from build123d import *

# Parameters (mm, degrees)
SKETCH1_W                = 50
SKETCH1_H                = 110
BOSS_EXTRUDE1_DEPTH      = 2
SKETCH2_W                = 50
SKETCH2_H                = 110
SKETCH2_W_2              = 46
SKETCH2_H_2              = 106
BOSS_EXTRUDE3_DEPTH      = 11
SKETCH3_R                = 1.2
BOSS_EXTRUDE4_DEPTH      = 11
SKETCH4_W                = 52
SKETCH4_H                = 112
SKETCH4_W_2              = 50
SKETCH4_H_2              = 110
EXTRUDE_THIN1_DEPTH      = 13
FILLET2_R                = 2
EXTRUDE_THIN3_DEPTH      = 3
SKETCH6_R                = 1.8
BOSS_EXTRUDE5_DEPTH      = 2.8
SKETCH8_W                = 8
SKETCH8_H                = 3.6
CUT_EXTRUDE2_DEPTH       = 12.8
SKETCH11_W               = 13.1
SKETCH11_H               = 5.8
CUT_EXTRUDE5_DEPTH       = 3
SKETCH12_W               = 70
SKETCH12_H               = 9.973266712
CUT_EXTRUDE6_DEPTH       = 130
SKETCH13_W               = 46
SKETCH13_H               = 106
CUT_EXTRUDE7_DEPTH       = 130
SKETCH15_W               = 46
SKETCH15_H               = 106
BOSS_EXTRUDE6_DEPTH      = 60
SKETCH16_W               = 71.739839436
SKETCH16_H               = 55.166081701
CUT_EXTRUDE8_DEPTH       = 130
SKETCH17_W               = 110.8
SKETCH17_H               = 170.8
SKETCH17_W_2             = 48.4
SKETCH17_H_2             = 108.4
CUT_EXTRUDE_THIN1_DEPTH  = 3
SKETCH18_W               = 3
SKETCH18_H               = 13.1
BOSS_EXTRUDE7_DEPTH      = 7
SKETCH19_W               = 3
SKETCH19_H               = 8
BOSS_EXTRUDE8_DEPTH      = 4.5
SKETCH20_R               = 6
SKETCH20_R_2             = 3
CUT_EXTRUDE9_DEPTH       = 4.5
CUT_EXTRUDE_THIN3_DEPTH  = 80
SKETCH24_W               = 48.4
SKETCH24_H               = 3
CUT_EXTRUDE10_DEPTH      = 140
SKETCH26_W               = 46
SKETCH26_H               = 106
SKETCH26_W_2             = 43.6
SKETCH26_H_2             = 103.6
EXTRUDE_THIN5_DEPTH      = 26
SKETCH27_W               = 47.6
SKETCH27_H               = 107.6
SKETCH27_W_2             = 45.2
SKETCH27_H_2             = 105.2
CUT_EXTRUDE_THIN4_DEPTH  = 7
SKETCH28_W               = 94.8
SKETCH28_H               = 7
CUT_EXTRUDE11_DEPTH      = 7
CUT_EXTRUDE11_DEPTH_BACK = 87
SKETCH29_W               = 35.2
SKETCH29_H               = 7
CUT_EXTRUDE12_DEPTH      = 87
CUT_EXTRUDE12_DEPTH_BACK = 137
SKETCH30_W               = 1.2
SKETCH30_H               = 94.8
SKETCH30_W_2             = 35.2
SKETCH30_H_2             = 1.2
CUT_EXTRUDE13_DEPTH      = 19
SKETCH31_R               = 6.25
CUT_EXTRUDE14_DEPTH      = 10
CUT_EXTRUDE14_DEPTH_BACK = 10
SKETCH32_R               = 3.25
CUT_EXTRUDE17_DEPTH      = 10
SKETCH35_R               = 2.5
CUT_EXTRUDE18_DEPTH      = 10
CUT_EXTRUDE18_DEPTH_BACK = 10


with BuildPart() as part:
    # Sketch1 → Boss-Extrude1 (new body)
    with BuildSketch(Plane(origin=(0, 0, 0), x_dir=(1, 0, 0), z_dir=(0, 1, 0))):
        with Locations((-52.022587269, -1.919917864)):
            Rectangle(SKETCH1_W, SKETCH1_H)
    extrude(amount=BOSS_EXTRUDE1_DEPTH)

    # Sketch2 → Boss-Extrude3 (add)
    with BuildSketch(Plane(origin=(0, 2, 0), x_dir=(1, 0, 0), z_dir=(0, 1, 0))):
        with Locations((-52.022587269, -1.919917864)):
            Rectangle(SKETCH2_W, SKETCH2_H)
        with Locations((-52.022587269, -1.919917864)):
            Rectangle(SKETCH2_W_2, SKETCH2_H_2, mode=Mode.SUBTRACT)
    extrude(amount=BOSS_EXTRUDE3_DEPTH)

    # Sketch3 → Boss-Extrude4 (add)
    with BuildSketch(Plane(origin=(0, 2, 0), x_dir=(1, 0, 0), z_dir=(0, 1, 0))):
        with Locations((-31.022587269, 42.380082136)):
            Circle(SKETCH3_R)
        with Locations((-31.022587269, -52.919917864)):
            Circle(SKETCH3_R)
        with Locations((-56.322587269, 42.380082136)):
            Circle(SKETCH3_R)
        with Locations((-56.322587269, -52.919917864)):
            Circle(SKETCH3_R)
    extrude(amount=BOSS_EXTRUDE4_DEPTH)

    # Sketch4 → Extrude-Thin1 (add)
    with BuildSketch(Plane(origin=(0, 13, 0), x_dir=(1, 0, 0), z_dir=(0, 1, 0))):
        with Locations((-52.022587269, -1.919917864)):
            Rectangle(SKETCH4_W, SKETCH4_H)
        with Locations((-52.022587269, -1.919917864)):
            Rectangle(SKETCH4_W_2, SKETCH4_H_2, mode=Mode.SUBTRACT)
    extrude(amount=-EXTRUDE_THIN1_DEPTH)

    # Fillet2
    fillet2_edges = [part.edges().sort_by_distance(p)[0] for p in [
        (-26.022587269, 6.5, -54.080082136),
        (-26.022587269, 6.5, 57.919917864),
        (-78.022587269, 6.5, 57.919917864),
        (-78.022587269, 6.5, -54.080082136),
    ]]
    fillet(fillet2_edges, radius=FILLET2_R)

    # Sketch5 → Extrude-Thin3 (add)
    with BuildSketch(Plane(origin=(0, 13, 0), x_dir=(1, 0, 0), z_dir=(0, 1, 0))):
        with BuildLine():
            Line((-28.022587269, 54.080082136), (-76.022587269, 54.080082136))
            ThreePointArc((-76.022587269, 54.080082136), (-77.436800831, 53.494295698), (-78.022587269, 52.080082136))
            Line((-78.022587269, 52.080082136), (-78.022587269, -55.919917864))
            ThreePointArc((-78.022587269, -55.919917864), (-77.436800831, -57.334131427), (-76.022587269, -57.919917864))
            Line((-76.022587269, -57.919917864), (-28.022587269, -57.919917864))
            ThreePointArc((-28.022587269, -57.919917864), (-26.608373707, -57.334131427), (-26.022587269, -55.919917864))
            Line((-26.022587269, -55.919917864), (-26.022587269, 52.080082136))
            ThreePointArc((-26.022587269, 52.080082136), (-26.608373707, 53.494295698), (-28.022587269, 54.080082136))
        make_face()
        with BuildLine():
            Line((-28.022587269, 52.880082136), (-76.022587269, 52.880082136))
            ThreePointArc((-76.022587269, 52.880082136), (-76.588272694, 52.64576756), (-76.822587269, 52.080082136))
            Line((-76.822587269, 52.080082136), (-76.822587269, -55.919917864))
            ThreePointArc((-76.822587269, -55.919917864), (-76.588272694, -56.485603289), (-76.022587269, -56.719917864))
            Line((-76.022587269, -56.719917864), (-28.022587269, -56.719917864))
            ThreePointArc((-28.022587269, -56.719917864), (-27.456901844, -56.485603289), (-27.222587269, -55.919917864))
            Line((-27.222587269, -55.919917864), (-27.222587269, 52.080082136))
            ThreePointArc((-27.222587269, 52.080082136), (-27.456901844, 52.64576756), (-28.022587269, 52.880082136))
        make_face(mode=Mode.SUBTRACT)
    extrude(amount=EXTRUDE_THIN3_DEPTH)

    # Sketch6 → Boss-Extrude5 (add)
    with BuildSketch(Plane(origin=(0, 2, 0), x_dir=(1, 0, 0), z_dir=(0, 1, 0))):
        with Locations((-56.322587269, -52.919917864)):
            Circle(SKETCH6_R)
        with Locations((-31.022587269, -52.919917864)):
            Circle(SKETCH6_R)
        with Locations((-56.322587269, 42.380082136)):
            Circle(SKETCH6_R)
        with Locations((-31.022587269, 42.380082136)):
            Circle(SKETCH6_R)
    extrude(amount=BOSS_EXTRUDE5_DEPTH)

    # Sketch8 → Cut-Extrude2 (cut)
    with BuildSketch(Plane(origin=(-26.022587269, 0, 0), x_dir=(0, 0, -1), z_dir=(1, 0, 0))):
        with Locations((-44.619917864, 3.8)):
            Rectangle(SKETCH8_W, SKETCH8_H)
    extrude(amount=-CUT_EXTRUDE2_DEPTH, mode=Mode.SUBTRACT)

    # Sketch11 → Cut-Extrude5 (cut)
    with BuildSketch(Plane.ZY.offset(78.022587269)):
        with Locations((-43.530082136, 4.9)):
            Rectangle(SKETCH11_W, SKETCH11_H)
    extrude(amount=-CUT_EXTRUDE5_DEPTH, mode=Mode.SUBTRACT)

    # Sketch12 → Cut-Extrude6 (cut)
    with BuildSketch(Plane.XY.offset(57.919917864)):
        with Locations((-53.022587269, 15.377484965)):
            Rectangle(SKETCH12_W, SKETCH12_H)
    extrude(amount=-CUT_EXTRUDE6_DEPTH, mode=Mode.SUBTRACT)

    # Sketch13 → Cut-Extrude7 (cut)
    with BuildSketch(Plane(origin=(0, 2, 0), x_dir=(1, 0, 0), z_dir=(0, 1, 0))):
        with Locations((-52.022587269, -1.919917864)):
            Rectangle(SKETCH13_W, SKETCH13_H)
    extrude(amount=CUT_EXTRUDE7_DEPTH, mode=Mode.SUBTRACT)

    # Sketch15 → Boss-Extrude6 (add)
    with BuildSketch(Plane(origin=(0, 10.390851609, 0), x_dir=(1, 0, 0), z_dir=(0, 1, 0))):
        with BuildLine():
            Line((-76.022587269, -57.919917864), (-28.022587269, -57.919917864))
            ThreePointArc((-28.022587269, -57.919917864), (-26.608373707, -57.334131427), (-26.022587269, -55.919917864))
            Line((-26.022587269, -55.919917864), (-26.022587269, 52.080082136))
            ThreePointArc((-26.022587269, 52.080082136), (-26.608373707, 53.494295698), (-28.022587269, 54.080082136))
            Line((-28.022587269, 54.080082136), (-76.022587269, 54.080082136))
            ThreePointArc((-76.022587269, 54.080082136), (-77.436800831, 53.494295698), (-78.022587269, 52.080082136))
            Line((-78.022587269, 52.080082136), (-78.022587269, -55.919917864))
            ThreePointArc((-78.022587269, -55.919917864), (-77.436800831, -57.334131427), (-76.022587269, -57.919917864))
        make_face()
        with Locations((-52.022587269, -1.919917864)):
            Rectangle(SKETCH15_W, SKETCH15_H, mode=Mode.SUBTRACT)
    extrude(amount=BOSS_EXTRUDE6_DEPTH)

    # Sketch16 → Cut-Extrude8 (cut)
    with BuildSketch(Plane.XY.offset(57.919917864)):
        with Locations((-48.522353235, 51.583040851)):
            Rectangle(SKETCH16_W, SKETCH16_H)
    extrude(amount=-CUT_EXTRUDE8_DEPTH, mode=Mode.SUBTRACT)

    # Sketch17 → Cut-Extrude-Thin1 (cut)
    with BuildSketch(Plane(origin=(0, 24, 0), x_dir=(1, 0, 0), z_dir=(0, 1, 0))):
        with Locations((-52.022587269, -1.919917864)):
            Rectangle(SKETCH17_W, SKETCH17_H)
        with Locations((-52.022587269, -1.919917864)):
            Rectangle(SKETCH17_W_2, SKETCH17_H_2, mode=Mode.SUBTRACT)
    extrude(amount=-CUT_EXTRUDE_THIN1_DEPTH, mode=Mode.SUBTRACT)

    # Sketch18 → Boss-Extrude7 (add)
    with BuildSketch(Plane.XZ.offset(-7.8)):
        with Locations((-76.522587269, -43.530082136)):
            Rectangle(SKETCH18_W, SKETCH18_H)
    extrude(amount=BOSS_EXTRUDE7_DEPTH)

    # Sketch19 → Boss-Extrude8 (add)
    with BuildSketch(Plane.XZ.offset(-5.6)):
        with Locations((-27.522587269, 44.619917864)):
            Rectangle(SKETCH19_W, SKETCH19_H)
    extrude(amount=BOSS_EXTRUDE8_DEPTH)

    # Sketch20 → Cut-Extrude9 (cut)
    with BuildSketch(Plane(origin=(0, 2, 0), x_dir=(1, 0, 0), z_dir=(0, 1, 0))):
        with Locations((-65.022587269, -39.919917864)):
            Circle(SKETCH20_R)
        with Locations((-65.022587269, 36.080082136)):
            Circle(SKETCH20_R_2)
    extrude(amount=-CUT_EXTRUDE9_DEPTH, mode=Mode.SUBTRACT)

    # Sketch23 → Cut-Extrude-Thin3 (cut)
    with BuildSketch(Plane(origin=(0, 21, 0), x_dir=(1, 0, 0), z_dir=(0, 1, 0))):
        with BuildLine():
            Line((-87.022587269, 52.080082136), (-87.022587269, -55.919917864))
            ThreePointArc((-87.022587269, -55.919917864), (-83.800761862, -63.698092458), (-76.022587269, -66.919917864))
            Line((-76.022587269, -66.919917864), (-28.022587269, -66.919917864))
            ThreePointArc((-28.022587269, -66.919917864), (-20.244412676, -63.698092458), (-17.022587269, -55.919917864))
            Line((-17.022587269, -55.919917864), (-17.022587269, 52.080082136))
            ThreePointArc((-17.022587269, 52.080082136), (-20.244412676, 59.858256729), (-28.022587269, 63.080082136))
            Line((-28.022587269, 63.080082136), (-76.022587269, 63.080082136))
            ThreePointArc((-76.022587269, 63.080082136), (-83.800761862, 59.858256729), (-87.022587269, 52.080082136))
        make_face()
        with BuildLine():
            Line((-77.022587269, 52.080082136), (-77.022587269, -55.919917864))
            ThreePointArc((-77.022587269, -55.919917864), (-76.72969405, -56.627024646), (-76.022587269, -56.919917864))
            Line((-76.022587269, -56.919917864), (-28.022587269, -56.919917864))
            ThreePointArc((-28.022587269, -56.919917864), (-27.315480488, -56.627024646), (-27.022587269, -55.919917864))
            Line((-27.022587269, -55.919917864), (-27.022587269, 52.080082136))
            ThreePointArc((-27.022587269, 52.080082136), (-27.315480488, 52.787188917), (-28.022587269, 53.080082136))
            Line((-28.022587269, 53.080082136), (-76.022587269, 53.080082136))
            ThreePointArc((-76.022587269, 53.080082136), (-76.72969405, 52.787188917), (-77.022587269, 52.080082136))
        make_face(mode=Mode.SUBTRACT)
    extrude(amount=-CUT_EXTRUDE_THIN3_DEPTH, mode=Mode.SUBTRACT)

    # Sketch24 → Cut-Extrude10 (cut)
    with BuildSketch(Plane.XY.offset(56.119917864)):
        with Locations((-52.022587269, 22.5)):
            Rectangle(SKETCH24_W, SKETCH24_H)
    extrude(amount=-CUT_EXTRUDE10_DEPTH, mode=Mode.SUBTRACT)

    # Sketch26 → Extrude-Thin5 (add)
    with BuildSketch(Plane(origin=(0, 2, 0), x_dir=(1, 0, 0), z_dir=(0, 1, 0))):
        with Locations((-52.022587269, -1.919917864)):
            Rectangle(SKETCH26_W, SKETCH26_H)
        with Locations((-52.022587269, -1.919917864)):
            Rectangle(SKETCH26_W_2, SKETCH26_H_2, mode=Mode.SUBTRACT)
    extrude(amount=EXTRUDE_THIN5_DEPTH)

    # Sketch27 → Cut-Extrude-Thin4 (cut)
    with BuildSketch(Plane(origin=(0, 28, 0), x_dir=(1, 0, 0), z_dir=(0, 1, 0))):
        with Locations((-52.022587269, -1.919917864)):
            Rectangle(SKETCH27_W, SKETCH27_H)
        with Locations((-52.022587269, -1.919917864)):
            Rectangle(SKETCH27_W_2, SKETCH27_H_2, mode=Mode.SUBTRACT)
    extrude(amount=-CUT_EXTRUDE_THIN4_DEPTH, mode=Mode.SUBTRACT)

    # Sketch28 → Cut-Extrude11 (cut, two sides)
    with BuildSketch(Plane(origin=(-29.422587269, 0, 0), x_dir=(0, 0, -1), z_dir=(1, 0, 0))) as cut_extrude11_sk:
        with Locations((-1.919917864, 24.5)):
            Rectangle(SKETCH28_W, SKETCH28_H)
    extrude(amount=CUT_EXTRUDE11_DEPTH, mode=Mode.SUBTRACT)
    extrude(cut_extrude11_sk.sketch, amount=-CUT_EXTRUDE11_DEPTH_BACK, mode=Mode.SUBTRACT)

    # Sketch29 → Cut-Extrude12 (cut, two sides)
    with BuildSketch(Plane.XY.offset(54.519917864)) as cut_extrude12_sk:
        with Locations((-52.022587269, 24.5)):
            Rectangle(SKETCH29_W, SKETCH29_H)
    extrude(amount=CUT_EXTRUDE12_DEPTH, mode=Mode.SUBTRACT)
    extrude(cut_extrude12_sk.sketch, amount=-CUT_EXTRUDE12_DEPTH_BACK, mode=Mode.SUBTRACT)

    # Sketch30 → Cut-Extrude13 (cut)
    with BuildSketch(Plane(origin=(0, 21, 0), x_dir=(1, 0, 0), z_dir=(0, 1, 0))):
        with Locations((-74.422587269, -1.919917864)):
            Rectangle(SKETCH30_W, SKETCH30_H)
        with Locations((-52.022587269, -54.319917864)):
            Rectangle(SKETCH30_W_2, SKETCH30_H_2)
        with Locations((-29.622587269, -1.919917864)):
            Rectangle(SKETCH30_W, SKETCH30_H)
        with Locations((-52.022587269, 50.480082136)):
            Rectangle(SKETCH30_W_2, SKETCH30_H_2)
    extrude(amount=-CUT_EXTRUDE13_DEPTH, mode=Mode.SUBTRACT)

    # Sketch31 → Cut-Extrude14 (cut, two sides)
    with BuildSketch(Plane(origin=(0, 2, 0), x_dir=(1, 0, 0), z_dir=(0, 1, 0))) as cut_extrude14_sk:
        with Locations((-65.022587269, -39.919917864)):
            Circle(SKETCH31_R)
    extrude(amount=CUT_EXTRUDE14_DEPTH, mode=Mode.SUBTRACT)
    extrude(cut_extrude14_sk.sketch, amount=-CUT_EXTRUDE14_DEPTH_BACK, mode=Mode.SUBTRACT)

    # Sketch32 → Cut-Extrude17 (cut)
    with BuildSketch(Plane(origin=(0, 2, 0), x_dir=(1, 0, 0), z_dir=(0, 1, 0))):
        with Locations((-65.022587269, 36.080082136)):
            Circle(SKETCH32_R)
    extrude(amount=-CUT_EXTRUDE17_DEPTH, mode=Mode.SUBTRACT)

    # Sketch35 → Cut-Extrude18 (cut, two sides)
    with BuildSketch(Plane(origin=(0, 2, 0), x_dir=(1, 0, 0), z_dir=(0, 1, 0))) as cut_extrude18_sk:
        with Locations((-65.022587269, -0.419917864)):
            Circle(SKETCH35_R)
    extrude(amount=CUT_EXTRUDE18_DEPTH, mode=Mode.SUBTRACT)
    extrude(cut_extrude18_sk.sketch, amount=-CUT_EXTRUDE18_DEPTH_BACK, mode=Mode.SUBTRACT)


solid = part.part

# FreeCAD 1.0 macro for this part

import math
import FreeCAD as App
import Part
import Sketcher

V = App.Vector


def edges_at(feature, points):
    """Names of the edges that pass closest to the given points."""
    edges = feature.Shape.Edges
    near = lambda p: min(range(len(edges)), key=lambda i: edges[i].distToShape(Part.Vertex(*p))[0])
    return sorted({f"Edge{near(p) + 1}" for p in points})


def add_polygon(sketch, points):
    """Adds a closed chain of lines whose ends are joined by coincident constraints."""
    first, n = sketch.GeometryCount, len(points)
    for a, b in zip(points, points[1:] + points[:1]):
        sketch.addGeometry(Part.LineSegment(App.Vector(*a, 0), App.Vector(*b, 0)), False)
    for i in range(n):
        sketch.addConstraint(Sketcher.Constraint("Coincident", first + i, 2, first + (i + 1) % n, 1))

doc = App.newDocument("Part")
body = doc.addObject("PartDesign::Body", "Body")

# Sketch on XZ plane
sketch1 = body.newObject("Sketcher::SketchObject", "Sketch")
sketch1.AttachmentSupport = (doc.getObject("XZ_Plane"), [""])
sketch1.MapMode = "FlatFace"
add_polygon(sketch1, [(-77, -53), (-77, 57), (-27, 57), (-27, -53)])  # lines 0-3
sketch1.addConstraint([
    Sketcher.Constraint("Vertical", 0),
    Sketcher.Constraint("Horizontal", 1),
    Sketcher.Constraint("Vertical", 2),
    Sketcher.Constraint("Horizontal", 3),
    Sketcher.Constraint("DistanceX", 1, 1, 1, 2, 50.0),
    Sketcher.Constraint("DistanceY", 0, 1, 0, 2, 110.0),
    Sketcher.Constraint("DistanceX", 0, 2, -1, 1, 77.022587),
    Sketcher.Constraint("DistanceY", -1, 1, 0, 2, 56.919918),
])
pad1 = body.newObject("PartDesign::Pad", "Pad")
pad1.Profile = sketch1
pad1.Length = 2
pad1.Reversed = True

# Sketch on XZ plane
sketch2 = body.newObject("Sketcher::SketchObject", "Sketch001")
sketch2.AttachmentSupport = (doc.getObject("XZ_Plane"), [""])
sketch2.MapMode = "FlatFace"
sketch2.AttachmentOffset = App.Placement(V(0, 0, -2), App.Rotation())
add_polygon(sketch2, [(-77, -53), (-77, 57), (-27, 57), (-27, -53)])  # lines 0-3
add_polygon(sketch2, [(-29, 55), (-75, 55), (-75, -51), (-29, -51)])  # lines 4-7
sketch2.addConstraint([
    Sketcher.Constraint("Vertical", 0),
    Sketcher.Constraint("Horizontal", 1),
    Sketcher.Constraint("Vertical", 2),
    Sketcher.Constraint("Horizontal", 3),
    Sketcher.Constraint("Horizontal", 4),
    Sketcher.Constraint("Vertical", 5),
    Sketcher.Constraint("Horizontal", 6),
    Sketcher.Constraint("Vertical", 7),
    Sketcher.Constraint("DistanceX", 1, 1, 1, 2, 50.0),
    Sketcher.Constraint("DistanceX", 4, 2, 4, 1, 46.0),
    Sketcher.Constraint("DistanceY", 0, 1, 0, 2, 110.0),
    Sketcher.Constraint("DistanceY", 5, 2, 5, 1, 106.0),
    Sketcher.Constraint("DistanceX", 0, 2, 4, 2, 2.0),
    Sketcher.Constraint("DistanceY", 4, 2, 0, 2, 2.0),
    Sketcher.Constraint("DistanceX", 0, 2, -1, 1, 77.022587),
    Sketcher.Constraint("DistanceY", -1, 1, 0, 2, 56.919918),
])
pad2 = body.newObject("PartDesign::Pad", "Pad001")
pad2.Profile = sketch2
pad2.Length = 11
pad2.Reversed = True

# Sketch on XZ plane
sketch3 = body.newObject("Sketcher::SketchObject", "Sketch002")
sketch3.AttachmentSupport = (doc.getObject("XZ_Plane"), [""])
sketch3.MapMode = "FlatFace"
sketch3.AttachmentOffset = App.Placement(V(0, 0, -2), App.Rotation())
sketch3.addGeometry([
    Part.Circle(V(-31, -42.4, 0), V(0, 0, 1), 1.2),
    Part.Circle(V(-31, 52.9, 0), V(0, 0, 1), 1.2),
    Part.Circle(V(-56.3, -42.4, 0), V(0, 0, 1), 1.2),
    Part.Circle(V(-56.3, 52.9, 0), V(0, 0, 1), 1.2),
], False)
sketch3.addConstraint([
    Sketcher.Constraint("Equal", 0, 1),
    Sketcher.Constraint("Equal", 1, 2),
    Sketcher.Constraint("Equal", 2, 3),
    Sketcher.Constraint("Horizontal", 0, 3, 2, 3),
    Sketcher.Constraint("Horizontal", 1, 3, 3, 3),
    Sketcher.Constraint("Vertical", 0, 3, 1, 3),
    Sketcher.Constraint("Vertical", 2, 3, 3, 3),
    Sketcher.Constraint("Diameter", 0, 2.4),
    Sketcher.Constraint("DistanceY", 0, 3, 1, 3, 95.3),
    Sketcher.Constraint("DistanceX", 2, 3, 0, 3, 25.3),
    Sketcher.Constraint("DistanceX", 0, 3, -1, 1, 31.022587),
    Sketcher.Constraint("DistanceY", 0, 3, -1, 1, 42.380082),
])
pad3 = body.newObject("PartDesign::Pad", "Pad002")
pad3.Profile = sketch3
pad3.Length = 11
pad3.Reversed = True

# Sketch on XZ plane
sketch4 = body.newObject("Sketcher::SketchObject", "Sketch003")
sketch4.AttachmentSupport = (doc.getObject("XZ_Plane"), [""])
sketch4.MapMode = "FlatFace"
sketch4.AttachmentOffset = App.Placement(V(0, 0, -13), App.Rotation())
add_polygon(sketch4, [(-78, -54), (-78, 58), (-26, 58), (-26, -54)])  # lines 0-3
add_polygon(sketch4, [(-27, 57), (-77, 57), (-77, -53), (-27, -53)])  # lines 4-7
sketch4.addConstraint([
    Sketcher.Constraint("Vertical", 0),
    Sketcher.Constraint("Horizontal", 1),
    Sketcher.Constraint("Vertical", 2),
    Sketcher.Constraint("Horizontal", 3),
    Sketcher.Constraint("Horizontal", 4),
    Sketcher.Constraint("Vertical", 5),
    Sketcher.Constraint("Horizontal", 6),
    Sketcher.Constraint("Vertical", 7),
    Sketcher.Constraint("DistanceX", 1, 1, 1, 2, 52.0),
    Sketcher.Constraint("DistanceX", 4, 2, 4, 1, 50.0),
    Sketcher.Constraint("DistanceY", 0, 1, 0, 2, 112.0),
    Sketcher.Constraint("DistanceY", 5, 2, 5, 1, 110.0),
    Sketcher.Constraint("DistanceX", 0, 2, 4, 2, 1.0),
    Sketcher.Constraint("DistanceY", 4, 2, 0, 2, 1.0),
    Sketcher.Constraint("DistanceX", 0, 2, -1, 1, 78.022587),
    Sketcher.Constraint("DistanceY", -1, 1, 0, 2, 57.919918),
])
pad4 = body.newObject("PartDesign::Pad", "Pad003")
pad4.Profile = sketch4
pad4.Length = 13
doc.recompute()

fillet = body.newObject("PartDesign::Fillet", "Fillet")
fillet.Base = (pad4, edges_at(pad4, [
    (-26.023, 6.5, -54.08),
    (-26.023, 6.5, 57.92),
    (-78.023, 6.5, 57.92),
    (-78.023, 6.5, -54.08),
]))
fillet.Radius = 2

# Sketch on XZ plane
sketch5 = body.newObject("Sketcher::SketchObject", "Sketch004")
sketch5.AttachmentSupport = (doc.getObject("XZ_Plane"), [""])
sketch5.MapMode = "FlatFace"
sketch5.AttachmentOffset = App.Placement(V(0, 0, -13), App.Rotation())
sketch5.addGeometry([
    Part.LineSegment(V(-28, -54.1, 0), V(-76, -54.1, 0)),  # 0
    Part.ArcOfCircle(Part.Circle(V(-76, -52.1, 0), V(0, 0, 1), 2), math.radians(-180), math.radians(-90)),  # 1
    Part.LineSegment(V(-78, -52.1, 0), V(-78, 55.9, 0)),  # 2
    Part.ArcOfCircle(Part.Circle(V(-76, 55.9, 0), V(0, 0, 1), 2), math.radians(90), math.radians(180)),  # 3
    Part.LineSegment(V(-76, 57.9, 0), V(-28, 57.9, 0)),  # 4
    Part.ArcOfCircle(Part.Circle(V(-28, 55.9, 0), V(0, 0, 1), 2), math.radians(0), math.radians(90)),  # 5
    Part.LineSegment(V(-26, 55.9, 0), V(-26, -52.1, 0)),  # 6
    Part.ArcOfCircle(Part.Circle(V(-28, -52.1, 0), V(0, 0, 1), 2), math.radians(-90), math.radians(0)),  # 7
    Part.LineSegment(V(-76, -52.9, 0), V(-28, -52.9, 0)),  # 8
    Part.ArcOfCircle(Part.Circle(V(-28, -52.1, 0), V(0, 0, 1), 0.8), math.radians(-90), math.radians(0)),  # 9
    Part.LineSegment(V(-27.2, -52.1, 0), V(-27.2, 55.9, 0)),  # 10
    Part.ArcOfCircle(Part.Circle(V(-28, 55.9, 0), V(0, 0, 1), 0.8), math.radians(0), math.radians(90)),  # 11
    Part.LineSegment(V(-28, 56.7, 0), V(-76, 56.7, 0)),  # 12
    Part.ArcOfCircle(Part.Circle(V(-76, 55.9, 0), V(0, 0, 1), 0.8), math.radians(90), math.radians(180)),  # 13
    Part.LineSegment(V(-76.8, 55.9, 0), V(-76.8, -52.1, 0)),  # 14
    Part.ArcOfCircle(Part.Circle(V(-76, -52.1, 0), V(0, 0, 1), 0.8), math.radians(-180), math.radians(-90)),  # 15
], False)
sketch5.addConstraint([
    Sketcher.Constraint("Tangent", 0, 2, 1, 2),
    Sketcher.Constraint("Tangent", 1, 1, 2, 1),
    Sketcher.Constraint("Tangent", 2, 2, 3, 2),
    Sketcher.Constraint("Tangent", 3, 1, 4, 1),
    Sketcher.Constraint("Tangent", 4, 2, 5, 2),
    Sketcher.Constraint("Tangent", 5, 1, 6, 1),
    Sketcher.Constraint("Tangent", 6, 2, 7, 2),
    Sketcher.Constraint("Tangent", 7, 1, 0, 1),
    Sketcher.Constraint("Tangent", 8, 2, 9, 1),
    Sketcher.Constraint("Tangent", 9, 2, 10, 1),
    Sketcher.Constraint("Tangent", 10, 2, 11, 1),
    Sketcher.Constraint("Tangent", 11, 2, 12, 1),
    Sketcher.Constraint("Tangent", 12, 2, 13, 1),
    Sketcher.Constraint("Tangent", 13, 2, 14, 1),
    Sketcher.Constraint("Tangent", 14, 2, 15, 1),
    Sketcher.Constraint("Tangent", 15, 2, 8, 1),
    Sketcher.Constraint("Horizontal", 0),
    Sketcher.Constraint("Vertical", 2),
    Sketcher.Constraint("Horizontal", 4),
    Sketcher.Constraint("Vertical", 6),
    Sketcher.Constraint("Horizontal", 8),
    Sketcher.Constraint("Vertical", 10),
    Sketcher.Constraint("Horizontal", 12),
    Sketcher.Constraint("Vertical", 14),
    Sketcher.Constraint("Coincident", 9, 3, 7, 3),
    Sketcher.Constraint("Coincident", 11, 3, 5, 3),
    Sketcher.Constraint("Coincident", 13, 3, 3, 3),
    Sketcher.Constraint("Equal", 1, 3),
    Sketcher.Constraint("Equal", 3, 5),
    Sketcher.Constraint("Equal", 5, 7),
    Sketcher.Constraint("Equal", 13, 15),
    Sketcher.Constraint("Radius", 1, 2.0),
    Sketcher.Constraint("Radius", 9, 0.8),
    Sketcher.Constraint("DistanceX", 0, 2, 0, 1, 48.0),
    Sketcher.Constraint("DistanceY", 2, 1, 2, 2, 108.0),
    Sketcher.Constraint("DistanceX", 1, 3, -1, 1, 76.022587),
    Sketcher.Constraint("DistanceY", 1, 3, -1, 1, 52.080082),
])
pad5 = body.newObject("PartDesign::Pad", "Pad004")
pad5.Profile = sketch5
pad5.Length = 3
pad5.Reversed = True

# Sketch on XZ plane
sketch6 = body.newObject("Sketcher::SketchObject", "Sketch005")
sketch6.AttachmentSupport = (doc.getObject("XZ_Plane"), [""])
sketch6.MapMode = "FlatFace"
sketch6.AttachmentOffset = App.Placement(V(0, 0, -2), App.Rotation())
sketch6.addGeometry([
    Part.Circle(V(-56.3, 52.9, 0), V(0, 0, 1), 1.8),
    Part.Circle(V(-31, 52.9, 0), V(0, 0, 1), 1.8),
    Part.Circle(V(-56.3, -42.4, 0), V(0, 0, 1), 1.8),
    Part.Circle(V(-31, -42.4, 0), V(0, 0, 1), 1.8),
], False)
sketch6.addConstraint([
    Sketcher.Constraint("Equal", 0, 1),
    Sketcher.Constraint("Equal", 1, 2),
    Sketcher.Constraint("Equal", 2, 3),
    Sketcher.Constraint("Horizontal", 0, 3, 1, 3),
    Sketcher.Constraint("Horizontal", 2, 3, 3, 3),
    Sketcher.Constraint("Vertical", 0, 3, 2, 3),
    Sketcher.Constraint("Vertical", 1, 3, 3, 3),
    Sketcher.Constraint("Diameter", 0, 3.6),
    Sketcher.Constraint("DistanceX", 0, 3, 1, 3, 25.3),
    Sketcher.Constraint("DistanceY", 2, 3, 0, 3, 95.3),
    Sketcher.Constraint("DistanceX", 0, 3, -1, 1, 56.322587),
    Sketcher.Constraint("DistanceY", -1, 1, 0, 3, 52.919918),
])
pad6 = body.newObject("PartDesign::Pad", "Pad005")
pad6.Profile = sketch6
pad6.Length = 2.8
pad6.Reversed = True

# Sketch on YZ plane
sketch7 = body.newObject("Sketcher::SketchObject", "Sketch006")
sketch7.AttachmentSupport = (doc.getObject("YZ_Plane"), [""])
sketch7.MapMode = "FlatFace"
sketch7.AttachmentOffset = App.Placement(V(0, 0, -26.022587), App.Rotation())
add_polygon(sketch7, [(5.6, 48.6), (2, 48.6), (2, 40.6), (5.6, 40.6)])  # lines 0-3
sketch7.addConstraint([
    Sketcher.Constraint("Horizontal", 0),
    Sketcher.Constraint("Vertical", 1),
    Sketcher.Constraint("Horizontal", 2),
    Sketcher.Constraint("Vertical", 3),
    Sketcher.Constraint("DistanceY", 1, 2, 1, 1, 8.0),
    Sketcher.Constraint("DistanceX", 0, 2, 0, 1, 3.6),
    Sketcher.Constraint("DistanceX", -1, 1, 0, 2, 2.0),
    Sketcher.Constraint("DistanceY", -1, 1, 0, 2, 48.619918),
])
pocket1 = body.newObject("PartDesign::Pocket", "Pocket")
pocket1.Profile = sketch7
pocket1.Length = 12.8

# Sketch on YZ plane
sketch8 = body.newObject("Sketcher::SketchObject", "Sketch007")
sketch8.AttachmentSupport = (doc.getObject("YZ_Plane"), [""])
sketch8.MapMode = "FlatFace"
sketch8.AttachmentOffset = App.Placement(V(0, 0, -78.022587), App.Rotation())
add_polygon(sketch8, [(8, -50), (2, -50), (2, -37), (8, -37)])  # lines 0-3
sketch8.addConstraint([
    Sketcher.Constraint("Horizontal", 0),
    Sketcher.Constraint("Vertical", 1),
    Sketcher.Constraint("Horizontal", 2),
    Sketcher.Constraint("Vertical", 3),
    Sketcher.Constraint("DistanceX", 0, 2, 0, 1, 5.8),
    Sketcher.Constraint("DistanceY", 1, 1, 1, 2, 13.1),
    Sketcher.Constraint("DistanceX", -1, 1, 0, 2, 2.0),
    Sketcher.Constraint("DistanceY", 0, 2, -1, 1, 50.080082),
])
pocket2 = body.newObject("PartDesign::Pocket", "Pocket001")
pocket2.Profile = sketch8
pocket2.Length = 3
pocket2.Reversed = True

# Sketch on XY plane
sketch9 = body.newObject("Sketcher::SketchObject", "Sketch008")
sketch9.AttachmentSupport = (doc.getObject("XY_Plane"), [""])
sketch9.MapMode = "FlatFace"
sketch9.AttachmentOffset = App.Placement(V(0, 0, 57.919918), App.Rotation())
add_polygon(sketch9, [(-88, 20), (-88, 10), (-18, 10), (-18, 20)])  # lines 0-3
sketch9.addConstraint([
    Sketcher.Constraint("Vertical", 0),
    Sketcher.Constraint("Horizontal", 1),
    Sketcher.Constraint("Vertical", 2),
    Sketcher.Constraint("Horizontal", 3),
    Sketcher.Constraint("DistanceX", 1, 1, 1, 2, 70.0),
    Sketcher.Constraint("DistanceY", 0, 2, 0, 1, 9.973267),
    Sketcher.Constraint("DistanceY", -1, 1, 0, 2, 10.390852),
    Sketcher.Constraint("DistanceX", 0, 2, -1, 1, 88.022587),
])
pocket3 = body.newObject("PartDesign::Pocket", "Pocket002")
pocket3.Profile = sketch9
pocket3.Length = 130

# Sketch on XZ plane
sketch10 = body.newObject("Sketcher::SketchObject", "Sketch009")
sketch10.AttachmentSupport = (doc.getObject("XZ_Plane"), [""])
sketch10.MapMode = "FlatFace"
sketch10.AttachmentOffset = App.Placement(V(0, 0, -2), App.Rotation())
add_polygon(sketch10, [(-75, -51), (-75, 55), (-29, 55), (-29, -51)])  # lines 0-3
sketch10.addConstraint([
    Sketcher.Constraint("Vertical", 0),
    Sketcher.Constraint("Horizontal", 1),
    Sketcher.Constraint("Vertical", 2),
    Sketcher.Constraint("Horizontal", 3),
    Sketcher.Constraint("DistanceX", 1, 1, 1, 2, 46.0),
    Sketcher.Constraint("DistanceY", 0, 1, 0, 2, 106.0),
    Sketcher.Constraint("DistanceX", 0, 2, -1, 1, 75.022587),
    Sketcher.Constraint("DistanceY", -1, 1, 0, 2, 54.919918),
])
pocket4 = body.newObject("PartDesign::Pocket", "Pocket003")
pocket4.Profile = sketch10
pocket4.Length = 130

# Sketch on XZ plane
sketch11 = body.newObject("Sketcher::SketchObject", "Sketch010")
sketch11.AttachmentSupport = (doc.getObject("XZ_Plane"), [""])
sketch11.MapMode = "FlatFace"
sketch11.AttachmentOffset = App.Placement(V(0, 0, -10.390852), App.Rotation())
sketch11.addGeometry(Part.LineSegment(V(-76, 57.9, 0), V(-28, 57.9, 0)), False)  # 0
sketch11.addGeometry(Part.ArcOfCircle(Part.Circle(V(-28, 55.9, 0), V(0, 0, 1), 2), math.radians(0), math.radians(90)), False)  # 1
sketch11.addGeometry(Part.LineSegment(V(-26, 55.9, 0), V(-26, -52.1, 0)), False)  # 2
sketch11.addGeometry(Part.ArcOfCircle(Part.Circle(V(-28, -52.1, 0), V(0, 0, 1), 2), math.radians(-90), math.radians(0)), False)  # 3
sketch11.addGeometry(Part.LineSegment(V(-28, -54.1, 0), V(-76, -54.1, 0)), False)  # 4
sketch11.addGeometry(Part.ArcOfCircle(Part.Circle(V(-76, -52.1, 0), V(0, 0, 1), 2), math.radians(-180), math.radians(-90)), False)  # 5
sketch11.addGeometry(Part.LineSegment(V(-78, -52.1, 0), V(-78, 55.9, 0)), False)  # 6
sketch11.addGeometry(Part.ArcOfCircle(Part.Circle(V(-76, 55.9, 0), V(0, 0, 1), 2), math.radians(90), math.radians(180)), False)  # 7
add_polygon(sketch11, [(-29, 54.9), (-75, 54.9), (-75, -51.1), (-29, -51.1)])  # lines 8-11
sketch11.addConstraint([
    Sketcher.Constraint("Tangent", 0, 2, 1, 2),
    Sketcher.Constraint("Tangent", 1, 1, 2, 1),
    Sketcher.Constraint("Tangent", 2, 2, 3, 2),
    Sketcher.Constraint("Tangent", 3, 1, 4, 1),
    Sketcher.Constraint("Tangent", 4, 2, 5, 2),
    Sketcher.Constraint("Tangent", 5, 1, 6, 1),
    Sketcher.Constraint("Tangent", 6, 2, 7, 2),
    Sketcher.Constraint("Tangent", 7, 1, 0, 1),
    Sketcher.Constraint("Horizontal", 0),
    Sketcher.Constraint("Vertical", 2),
    Sketcher.Constraint("Horizontal", 4),
    Sketcher.Constraint("Vertical", 6),
    Sketcher.Constraint("Horizontal", 8),
    Sketcher.Constraint("Vertical", 9),
    Sketcher.Constraint("Horizontal", 10),
    Sketcher.Constraint("Vertical", 11),
    Sketcher.Constraint("Equal", 1, 3),
    Sketcher.Constraint("Equal", 3, 5),
    Sketcher.Constraint("Equal", 5, 7),
    Sketcher.Constraint("Radius", 1, 2.0),
    Sketcher.Constraint("DistanceX", 0, 1, 0, 2, 48.0),
    Sketcher.Constraint("DistanceX", 8, 2, 8, 1, 46.0),
    Sketcher.Constraint("DistanceY", 2, 2, 2, 1, 108.0),
    Sketcher.Constraint("DistanceY", 9, 2, 9, 1, 106.0),
    Sketcher.Constraint("DistanceX", 7, 3, 8, 2, 1.0),
    Sketcher.Constraint("DistanceY", 8, 2, 7, 3, 1.0),
    Sketcher.Constraint("DistanceX", 1, 3, -1, 1, 28.022587),
    Sketcher.Constraint("DistanceY", -1, 1, 1, 3, 55.919918),
])
pad7 = body.newObject("PartDesign::Pad", "Pad006")
pad7.Profile = sketch11
pad7.Length = 60
pad7.Reversed = True

# Sketch on XY plane
sketch12 = body.newObject("Sketcher::SketchObject", "Sketch011")
sketch12.AttachmentSupport = (doc.getObject("XY_Plane"), [""])
sketch12.MapMode = "FlatFace"
sketch12.AttachmentOffset = App.Placement(V(0, 0, 57.919918), App.Rotation())
add_polygon(sketch12, [(-84, 79), (-84, 24), (-13, 24), (-13, 79)])  # lines 0-3
sketch12.addConstraint([
    Sketcher.Constraint("Vertical", 0),
    Sketcher.Constraint("Horizontal", 1),
    Sketcher.Constraint("Vertical", 2),
    Sketcher.Constraint("Horizontal", 3),
    Sketcher.Constraint("DistanceY", -1, 1, 0, 2, 24.0),
    Sketcher.Constraint("DistanceX", 1, 1, 1, 2, 71.739839),
    Sketcher.Constraint("DistanceY", 0, 2, 0, 1, 55.166082),
    Sketcher.Constraint("DistanceX", 0, 2, -1, 1, 84.392273),
])
pocket5 = body.newObject("PartDesign::Pocket", "Pocket004")
pocket5.Profile = sketch12
pocket5.Length = 130

# Sketch on XZ plane
sketch13 = body.newObject("Sketcher::SketchObject", "Sketch012")
sketch13.AttachmentSupport = (doc.getObject("XZ_Plane"), [""])
sketch13.MapMode = "FlatFace"
sketch13.AttachmentOffset = App.Placement(V(0, 0, -24), App.Rotation())
add_polygon(sketch13, [(-107, -83), (-107, 87), (3, 87), (3, -83)])  # lines 0-3
add_polygon(sketch13, [(-28, 56), (-76, 56), (-76, -52), (-28, -52)])  # lines 4-7
sketch13.addConstraint([
    Sketcher.Constraint("Vertical", 0),
    Sketcher.Constraint("Horizontal", 1),
    Sketcher.Constraint("Vertical", 2),
    Sketcher.Constraint("Horizontal", 3),
    Sketcher.Constraint("Horizontal", 4),
    Sketcher.Constraint("Vertical", 5),
    Sketcher.Constraint("Horizontal", 6),
    Sketcher.Constraint("Vertical", 7),
    Sketcher.Constraint("DistanceX", 1, 1, 1, 2, 110.8),
    Sketcher.Constraint("DistanceX", 4, 2, 4, 1, 48.4),
    Sketcher.Constraint("DistanceY", 0, 1, 0, 2, 170.8),
    Sketcher.Constraint("DistanceY", 5, 2, 5, 1, 108.4),
    Sketcher.Constraint("DistanceX", 0, 2, 4, 2, 31.2),
    Sketcher.Constraint("DistanceY", 4, 2, 0, 2, 31.2),
    Sketcher.Constraint("DistanceX", 0, 2, -1, 1, 107.422587),
    Sketcher.Constraint("DistanceY", -1, 1, 0, 2, 87.319918),
])
pocket6 = body.newObject("PartDesign::Pocket", "Pocket005")
pocket6.Profile = sketch13
pocket6.Length = 3
pocket6.Reversed = True

# Sketch on XZ plane
sketch14 = body.newObject("Sketcher::SketchObject", "Sketch013")
sketch14.AttachmentSupport = (doc.getObject("XZ_Plane"), [""])
sketch14.MapMode = "FlatFace"
sketch14.AttachmentOffset = App.Placement(V(0, 0, -7.8), App.Rotation())
add_polygon(sketch14, [(-78, -37), (-78, -50.1), (-75, -50.1), (-75, -37)])  # lines 0-3
sketch14.addConstraint([
    Sketcher.Constraint("Vertical", 0),
    Sketcher.Constraint("Horizontal", 1),
    Sketcher.Constraint("Vertical", 2),
    Sketcher.Constraint("Horizontal", 3),
    Sketcher.Constraint("DistanceX", 1, 1, 1, 2, 3.0),
    Sketcher.Constraint("DistanceY", 0, 2, 0, 1, 13.1),
    Sketcher.Constraint("DistanceX", 0, 2, -1, 1, 78.022587),
    Sketcher.Constraint("DistanceY", 0, 2, -1, 1, 50.080082),
])
pad8 = body.newObject("PartDesign::Pad", "Pad007")
pad8.Profile = sketch14
pad8.Length = 7

# Sketch on XZ plane
sketch15 = body.newObject("Sketcher::SketchObject", "Sketch014")
sketch15.AttachmentSupport = (doc.getObject("XZ_Plane"), [""])
sketch15.MapMode = "FlatFace"
sketch15.AttachmentOffset = App.Placement(V(0, 0, -5.6), App.Rotation())
add_polygon(sketch15, [(-29, 48.6), (-29, 40.6), (-26, 40.6), (-26, 48.6)])  # lines 0-3
sketch15.addConstraint([
    Sketcher.Constraint("Vertical", 0),
    Sketcher.Constraint("Horizontal", 1),
    Sketcher.Constraint("Vertical", 2),
    Sketcher.Constraint("Horizontal", 3),
    Sketcher.Constraint("DistanceX", 1, 1, 1, 2, 3.0),
    Sketcher.Constraint("DistanceY", 0, 2, 0, 1, 8.0),
    Sketcher.Constraint("DistanceX", 0, 2, -1, 1, 29.022587),
    Sketcher.Constraint("DistanceY", -1, 1, 0, 2, 40.619918),
])
pad9 = body.newObject("PartDesign::Pad", "Pad008")
pad9.Profile = sketch15
pad9.Length = 4.5

# Sketch on XZ plane
sketch16 = body.newObject("Sketcher::SketchObject", "Sketch015")
sketch16.AttachmentSupport = (doc.getObject("XZ_Plane"), [""])
sketch16.MapMode = "FlatFace"
sketch16.AttachmentOffset = App.Placement(V(0, 0, -2), App.Rotation())
sketch16.addGeometry([
    Part.Circle(V(-65, 39.9, 0), V(0, 0, 1), 6),
    Part.Circle(V(-65, -36.1, 0), V(0, 0, 1), 3),
], False)
sketch16.addConstraint([
    Sketcher.Constraint("Vertical", 0, 3, 1, 3),
    Sketcher.Constraint("Diameter", 0, 12.0),
    Sketcher.Constraint("Diameter", 1, 6.0),
    Sketcher.Constraint("DistanceY", 1, 3, 0, 3, 76.0),
    Sketcher.Constraint("DistanceX", 0, 3, -1, 1, 65.022587),
    Sketcher.Constraint("DistanceY", -1, 1, 0, 3, 39.919918),
])
pocket7 = body.newObject("PartDesign::Pocket", "Pocket006")
pocket7.Profile = sketch16
pocket7.Length = 4.5
pocket7.Reversed = True

# Sketch on XZ plane
sketch17 = body.newObject("Sketcher::SketchObject", "Sketch016")
sketch17.AttachmentSupport = (doc.getObject("XZ_Plane"), [""])
sketch17.MapMode = "FlatFace"
sketch17.AttachmentOffset = App.Placement(V(0, 0, -21), App.Rotation())
sketch17.addGeometry([
    Part.LineSegment(V(-87, -52.1, 0), V(-87, 55.9, 0)),  # 0
    Part.ArcOfCircle(Part.Circle(V(-76, 55.9, 0), V(0, 0, 1), 11), math.radians(90), math.radians(180)),  # 1
    Part.LineSegment(V(-76, 66.9, 0), V(-28, 66.9, 0)),  # 2
    Part.ArcOfCircle(Part.Circle(V(-28, 55.9, 0), V(0, 0, 1), 11), math.radians(0), math.radians(90)),  # 3
    Part.LineSegment(V(-17, 55.9, 0), V(-17, -52.1, 0)),  # 4
    Part.ArcOfCircle(Part.Circle(V(-28, -52.1, 0), V(0, 0, 1), 11), math.radians(-90), math.radians(0)),  # 5
    Part.LineSegment(V(-28, -63.1, 0), V(-76, -63.1, 0)),  # 6
    Part.ArcOfCircle(Part.Circle(V(-76, -52.1, 0), V(0, 0, 1), 11), math.radians(180), math.radians(270)),  # 7
    Part.LineSegment(V(-77, 55.9, 0), V(-77, -52.1, 0)),  # 8
    Part.ArcOfCircle(Part.Circle(V(-76, -52.1, 0), V(0, 0, 1), 1), math.radians(-180), math.radians(-90)),  # 9
    Part.LineSegment(V(-76, -53.1, 0), V(-28, -53.1, 0)),  # 10
    Part.ArcOfCircle(Part.Circle(V(-28, -52.1, 0), V(0, 0, 1), 1), math.radians(-90), math.radians(0)),  # 11
    Part.LineSegment(V(-27, -52.1, 0), V(-27, 55.9, 0)),  # 12
    Part.ArcOfCircle(Part.Circle(V(-28, 55.9, 0), V(0, 0, 1), 1), math.radians(0), math.radians(90)),  # 13
    Part.LineSegment(V(-28, 56.9, 0), V(-76, 56.9, 0)),  # 14
    Part.ArcOfCircle(Part.Circle(V(-76, 55.9, 0), V(0, 0, 1), 1), math.radians(90), math.radians(180)),  # 15
], False)
sketch17.addConstraint([
    Sketcher.Constraint("Tangent", 0, 2, 1, 2),
    Sketcher.Constraint("Tangent", 1, 1, 2, 1),
    Sketcher.Constraint("Tangent", 2, 2, 3, 2),
    Sketcher.Constraint("Tangent", 3, 1, 4, 1),
    Sketcher.Constraint("Tangent", 4, 2, 5, 2),
    Sketcher.Constraint("Tangent", 5, 1, 6, 1),
    Sketcher.Constraint("Tangent", 6, 2, 7, 2),
    Sketcher.Constraint("Tangent", 7, 1, 0, 1),
    Sketcher.Constraint("Tangent", 8, 2, 9, 1),
    Sketcher.Constraint("Tangent", 9, 2, 10, 1),
    Sketcher.Constraint("Tangent", 10, 2, 11, 1),
    Sketcher.Constraint("Tangent", 11, 2, 12, 1),
    Sketcher.Constraint("Tangent", 12, 2, 13, 1),
    Sketcher.Constraint("Tangent", 13, 2, 14, 1),
    Sketcher.Constraint("Tangent", 14, 2, 15, 1),
    Sketcher.Constraint("Tangent", 15, 2, 8, 1),
    Sketcher.Constraint("Vertical", 0),
    Sketcher.Constraint("Horizontal", 2),
    Sketcher.Constraint("Vertical", 4),
    Sketcher.Constraint("Horizontal", 6),
    Sketcher.Constraint("Vertical", 8),
    Sketcher.Constraint("Horizontal", 10),
    Sketcher.Constraint("Vertical", 12),
    Sketcher.Constraint("Horizontal", 14),
    Sketcher.Constraint("Coincident", 9, 3, 7, 3),
    Sketcher.Constraint("Coincident", 11, 3, 5, 3),
    Sketcher.Constraint("Coincident", 13, 3, 3, 3),
    Sketcher.Constraint("Equal", 1, 3),
    Sketcher.Constraint("Equal", 3, 5),
    Sketcher.Constraint("Equal", 5, 7),
    Sketcher.Constraint("Equal", 13, 15),
    Sketcher.Constraint("Radius", 1, 11.0),
    Sketcher.Constraint("Radius", 9, 1.0),
    Sketcher.Constraint("DistanceX", 2, 1, 2, 2, 48.0),
    Sketcher.Constraint("DistanceY", 0, 1, 0, 2, 108.0),
    Sketcher.Constraint("DistanceX", 1, 3, -1, 1, 76.022587),
    Sketcher.Constraint("DistanceY", -1, 1, 1, 3, 55.919918),
])
pocket8 = body.newObject("PartDesign::Pocket", "Pocket007")
pocket8.Profile = sketch17
pocket8.Length = 80
pocket8.Reversed = True

# Sketch on XY plane
sketch18 = body.newObject("Sketcher::SketchObject", "Sketch017")
sketch18.AttachmentSupport = (doc.getObject("XY_Plane"), [""])
sketch18.MapMode = "FlatFace"
sketch18.AttachmentOffset = App.Placement(V(0, 0, 56.119918), App.Rotation())
add_polygon(sketch18, [(-76.2, 24), (-76.2, 21), (-27.8, 21), (-27.8, 24)])  # lines 0-3
sketch18.addConstraint([
    Sketcher.Constraint("Vertical", 0),
    Sketcher.Constraint("Horizontal", 1),
    Sketcher.Constraint("Vertical", 2),
    Sketcher.Constraint("Horizontal", 3),
    Sketcher.Constraint("DistanceY", 0, 2, 0, 1, 3.0),
    Sketcher.Constraint("DistanceX", 1, 1, 1, 2, 48.4),
    Sketcher.Constraint("DistanceY", -1, 1, 0, 2, 21.0),
    Sketcher.Constraint("DistanceX", 0, 2, -1, 1, 76.222587),
])
pocket9 = body.newObject("PartDesign::Pocket", "Pocket008")
pocket9.Profile = sketch18
pocket9.Length = 140

# Sketch on XZ plane
sketch19 = body.newObject("Sketcher::SketchObject", "Sketch018")
sketch19.AttachmentSupport = (doc.getObject("XZ_Plane"), [""])
sketch19.MapMode = "FlatFace"
sketch19.AttachmentOffset = App.Placement(V(0, 0, -2), App.Rotation())
add_polygon(sketch19, [(-75, -51), (-75, 55), (-29, 55), (-29, -51)])  # lines 0-3
add_polygon(sketch19, [(-30, 54), (-74, 54), (-74, -50), (-30, -50)])  # lines 4-7
sketch19.addConstraint([
    Sketcher.Constraint("Vertical", 0),
    Sketcher.Constraint("Horizontal", 1),
    Sketcher.Constraint("Vertical", 2),
    Sketcher.Constraint("Horizontal", 3),
    Sketcher.Constraint("Horizontal", 4),
    Sketcher.Constraint("Vertical", 5),
    Sketcher.Constraint("Horizontal", 6),
    Sketcher.Constraint("Vertical", 7),
    Sketcher.Constraint("DistanceX", 1, 1, 1, 2, 46.0),
    Sketcher.Constraint("DistanceY", 0, 1, 0, 2, 106.0),
    Sketcher.Constraint("DistanceX", 4, 2, 4, 1, 43.6),
    Sketcher.Constraint("DistanceY", 5, 2, 5, 1, 103.6),
    Sketcher.Constraint("DistanceX", 0, 2, 4, 2, 1.2),
    Sketcher.Constraint("DistanceY", 4, 2, 0, 2, 1.2),
    Sketcher.Constraint("DistanceX", 0, 2, -1, 1, 75.022587),
    Sketcher.Constraint("DistanceY", -1, 1, 0, 2, 54.919918),
])
pad10 = body.newObject("PartDesign::Pad", "Pad009")
pad10.Profile = sketch19
pad10.Length = 26
pad10.Reversed = True

# Sketch on XZ plane
sketch20 = body.newObject("Sketcher::SketchObject", "Sketch019")
sketch20.AttachmentSupport = (doc.getObject("XZ_Plane"), [""])
sketch20.MapMode = "FlatFace"
sketch20.AttachmentOffset = App.Placement(V(0, 0, -28), App.Rotation())
add_polygon(sketch20, [(-76, -52), (-76, 56), (-28, 56), (-28, -52)])  # lines 0-3
add_polygon(sketch20, [(-29, 55), (-75, 55), (-75, -51), (-29, -51)])  # lines 4-7
sketch20.addConstraint([
    Sketcher.Constraint("Vertical", 0),
    Sketcher.Constraint("Horizontal", 1),
    Sketcher.Constraint("Vertical", 2),
    Sketcher.Constraint("Horizontal", 3),
    Sketcher.Constraint("Horizontal", 4),
    Sketcher.Constraint("Vertical", 5),
    Sketcher.Constraint("Horizontal", 6),
    Sketcher.Constraint("Vertical", 7),
    Sketcher.Constraint("DistanceX", 1, 1, 1, 2, 47.6),
    Sketcher.Constraint("DistanceX", 4, 2, 4, 1, 45.2),
    Sketcher.Constraint("DistanceY", 0, 1, 0, 2, 107.6),
    Sketcher.Constraint("DistanceY", 5, 2, 5, 1, 105.2),
    Sketcher.Constraint("DistanceX", 0, 2, 4, 2, 1.2),
    Sketcher.Constraint("DistanceY", 4, 2, 0, 2, 1.2),
    Sketcher.Constraint("DistanceX", 0, 2, -1, 1, 75.822587),
    Sketcher.Constraint("DistanceY", -1, 1, 0, 2, 55.719918),
])
pocket10 = body.newObject("PartDesign::Pocket", "Pocket009")
pocket10.Profile = sketch20
pocket10.Length = 7
pocket10.Reversed = True

# Sketch on YZ plane
sketch21 = body.newObject("Sketcher::SketchObject", "Sketch020")
sketch21.AttachmentSupport = (doc.getObject("YZ_Plane"), [""])
sketch21.MapMode = "FlatFace"
sketch21.AttachmentOffset = App.Placement(V(0, 0, -29.422587), App.Rotation())
add_polygon(sketch21, [(28, 49), (21, 49), (21, -45), (28, -45)])  # lines 0-3
sketch21.addConstraint([
    Sketcher.Constraint("Horizontal", 0),
    Sketcher.Constraint("Vertical", 1),
    Sketcher.Constraint("Horizontal", 2),
    Sketcher.Constraint("Vertical", 3),
    Sketcher.Constraint("DistanceX", 0, 2, 0, 1, 7.0),
    Sketcher.Constraint("DistanceY", 1, 2, 1, 1, 94.8),
    Sketcher.Constraint("DistanceX", -1, 1, 0, 2, 21.0),
    Sketcher.Constraint("DistanceY", -1, 1, 0, 2, 49.319918),
])
pocket11 = body.newObject("PartDesign::Pocket", "Pocket010")
pocket11.Profile = sketch21
pocket11.Type = "ThroughAll"
pocket11.Midplane = True

# Sketch on XY plane
sketch22 = body.newObject("Sketcher::SketchObject", "Sketch021")
sketch22.AttachmentSupport = (doc.getObject("XY_Plane"), [""])
sketch22.MapMode = "FlatFace"
sketch22.AttachmentOffset = App.Placement(V(0, 0, 54.519918), App.Rotation())
add_polygon(sketch22, [(-70, 28), (-70, 21), (-34, 21), (-34, 28)])  # lines 0-3
sketch22.addConstraint([
    Sketcher.Constraint("Vertical", 0),
    Sketcher.Constraint("Horizontal", 1),
    Sketcher.Constraint("Vertical", 2),
    Sketcher.Constraint("Horizontal", 3),
    Sketcher.Constraint("DistanceY", 0, 2, 0, 1, 7.0),
    Sketcher.Constraint("DistanceX", 1, 1, 1, 2, 35.2),
    Sketcher.Constraint("DistanceY", -1, 1, 0, 2, 21.0),
    Sketcher.Constraint("DistanceX", 0, 2, -1, 1, 69.622587),
])
pocket12 = body.newObject("PartDesign::Pocket", "Pocket011")
pocket12.Profile = sketch22
pocket12.Type = "ThroughAll"
pocket12.Midplane = True

# Sketch on XZ plane
sketch23 = body.newObject("Sketcher::SketchObject", "Sketch022")
sketch23.AttachmentSupport = (doc.getObject("XZ_Plane"), [""])
sketch23.MapMode = "FlatFace"
sketch23.AttachmentOffset = App.Placement(V(0, 0, -21), App.Rotation())
add_polygon(sketch23, [(-75, -45.5), (-75, 49.3), (-73.8, 49.3), (-73.8, -45.5)])  # lines 0-3
add_polygon(sketch23, [(-69.6, 53.7), (-69.6, 54.9), (-34.4, 54.9), (-34.4, 53.7)])  # lines 4-7
add_polygon(sketch23, [(-30.2, -45.5), (-30.2, 49.3), (-29, 49.3), (-29, -45.5)])  # lines 8-11
add_polygon(sketch23, [(-69.6, -51.1), (-69.6, -49.9), (-34.4, -49.9), (-34.4, -51.1)])  # lines 12-15
sketch23.addConstraint([
    Sketcher.Constraint("Vertical", 0),
    Sketcher.Constraint("Horizontal", 1),
    Sketcher.Constraint("Vertical", 2),
    Sketcher.Constraint("Horizontal", 3),
    Sketcher.Constraint("Vertical", 4),
    Sketcher.Constraint("Horizontal", 5),
    Sketcher.Constraint("Vertical", 6),
    Sketcher.Constraint("Horizontal", 7),
    Sketcher.Constraint("Vertical", 8),
    Sketcher.Constraint("Horizontal", 9),
    Sketcher.Constraint("Vertical", 10),
    Sketcher.Constraint("Horizontal", 11),
    Sketcher.Constraint("Vertical", 12),
    Sketcher.Constraint("Horizontal", 13),
    Sketcher.Constraint("Vertical", 14),
    Sketcher.Constraint("Horizontal", 15),
    Sketcher.Constraint("Horizontal", 1, 2, 8, 2),
    Sketcher.Constraint("Horizontal", 3, 2, 10, 2),
    Sketcher.Constraint("Vertical", 7, 2, 12, 2),
    Sketcher.Constraint("Vertical", 6, 2, 13, 2),
    Sketcher.Constraint("Equal", 3, 9),
    Sketcher.Constraint("Equal", 11, 4),
    Sketcher.Constraint("Equal", 6, 12),
    Sketcher.Constraint("DistanceX", 1, 1, 1, 2, 1.2),
    Sketcher.Constraint("DistanceX", 5, 1, 5, 2, 35.2),
    Sketcher.Constraint("DistanceY", 0, 1, 0, 2, 94.8),
    Sketcher.Constraint("DistanceX", 3, 2, 10, 2, 46.0),
    Sketcher.Constraint("DistanceX", 1, 2, 4, 2, 4.2),
    Sketcher.Constraint("DistanceY", 1, 2, 4, 2, 5.6),
    Sketcher.Constraint("DistanceY", 12, 2, 2, 2, 4.4),
    Sketcher.Constraint("DistanceX", 0, 2, -1, 1, 75.022587),
    Sketcher.Constraint("DistanceY", -1, 1, 0, 2, 49.319918),
])
pocket13 = body.newObject("PartDesign::Pocket", "Pocket012")
pocket13.Profile = sketch23
pocket13.Length = 19
pocket13.Reversed = True

# Sketch on XZ plane
sketch24 = body.newObject("Sketcher::SketchObject", "Sketch023")
sketch24.AttachmentSupport = (doc.getObject("XZ_Plane"), [""])
sketch24.MapMode = "FlatFace"
sketch24.AttachmentOffset = App.Placement(V(0, 0, -2), App.Rotation())
sketch24.addGeometry(Part.Circle(V(-65, 40, 0), V(0, 0, 1), 6), False)
sketch24.addConstraint([
    Sketcher.Constraint("Diameter", 0, 12.5),
    Sketcher.Constraint("DistanceX", 0, 3, -1, 1, 65.022587),
    Sketcher.Constraint("DistanceY", -1, 1, 0, 3, 39.919918),
])
pocket14 = body.newObject("PartDesign::Pocket", "Pocket013")
pocket14.Profile = sketch24
pocket14.Type = "ThroughAll"
pocket14.Midplane = True

# Sketch on XZ plane
sketch25 = body.newObject("Sketcher::SketchObject", "Sketch024")
sketch25.AttachmentSupport = (doc.getObject("XZ_Plane"), [""])
sketch25.MapMode = "FlatFace"
sketch25.AttachmentOffset = App.Placement(V(0, 0, -2), App.Rotation())
sketch25.addGeometry(Part.Circle(V(-65, -36.1, 0), V(0, 0, 1), 3.2), False)
sketch25.addConstraint([
    Sketcher.Constraint("Diameter", 0, 6.5),
    Sketcher.Constraint("DistanceX", 0, 3, -1, 1, 65.022587),
    Sketcher.Constraint("DistanceY", 0, 3, -1, 1, 36.080082),
])
pocket15 = body.newObject("PartDesign::Pocket", "Pocket014")
pocket15.Profile = sketch25
pocket15.Length = 10
pocket15.Reversed = True

# Sketch on XZ plane
sketch26 = body.newObject("Sketcher::SketchObject", "Sketch025")
sketch26.AttachmentSupport = (doc.getObject("XZ_Plane"), [""])
sketch26.MapMode = "FlatFace"
sketch26.AttachmentOffset = App.Placement(V(0, 0, -2), App.Rotation())
sketch26.addGeometry(Part.Circle(V(-65, 0.4, 0), V(0, 0, 1), 2.5), False)
sketch26.addConstraint([
    Sketcher.Constraint("Diameter", 0, 5.0),
    Sketcher.Constraint("DistanceX", 0, 3, -1, 1, 65.022587),
    Sketcher.Constraint("DistanceY", -1, 1, 0, 3, 0.419918),
])
pocket16 = body.newObject("PartDesign::Pocket", "Pocket015")
pocket16.Profile = sketch26
pocket16.Type = "ThroughAll"
pocket16.Midplane = True

doc.recompute()
